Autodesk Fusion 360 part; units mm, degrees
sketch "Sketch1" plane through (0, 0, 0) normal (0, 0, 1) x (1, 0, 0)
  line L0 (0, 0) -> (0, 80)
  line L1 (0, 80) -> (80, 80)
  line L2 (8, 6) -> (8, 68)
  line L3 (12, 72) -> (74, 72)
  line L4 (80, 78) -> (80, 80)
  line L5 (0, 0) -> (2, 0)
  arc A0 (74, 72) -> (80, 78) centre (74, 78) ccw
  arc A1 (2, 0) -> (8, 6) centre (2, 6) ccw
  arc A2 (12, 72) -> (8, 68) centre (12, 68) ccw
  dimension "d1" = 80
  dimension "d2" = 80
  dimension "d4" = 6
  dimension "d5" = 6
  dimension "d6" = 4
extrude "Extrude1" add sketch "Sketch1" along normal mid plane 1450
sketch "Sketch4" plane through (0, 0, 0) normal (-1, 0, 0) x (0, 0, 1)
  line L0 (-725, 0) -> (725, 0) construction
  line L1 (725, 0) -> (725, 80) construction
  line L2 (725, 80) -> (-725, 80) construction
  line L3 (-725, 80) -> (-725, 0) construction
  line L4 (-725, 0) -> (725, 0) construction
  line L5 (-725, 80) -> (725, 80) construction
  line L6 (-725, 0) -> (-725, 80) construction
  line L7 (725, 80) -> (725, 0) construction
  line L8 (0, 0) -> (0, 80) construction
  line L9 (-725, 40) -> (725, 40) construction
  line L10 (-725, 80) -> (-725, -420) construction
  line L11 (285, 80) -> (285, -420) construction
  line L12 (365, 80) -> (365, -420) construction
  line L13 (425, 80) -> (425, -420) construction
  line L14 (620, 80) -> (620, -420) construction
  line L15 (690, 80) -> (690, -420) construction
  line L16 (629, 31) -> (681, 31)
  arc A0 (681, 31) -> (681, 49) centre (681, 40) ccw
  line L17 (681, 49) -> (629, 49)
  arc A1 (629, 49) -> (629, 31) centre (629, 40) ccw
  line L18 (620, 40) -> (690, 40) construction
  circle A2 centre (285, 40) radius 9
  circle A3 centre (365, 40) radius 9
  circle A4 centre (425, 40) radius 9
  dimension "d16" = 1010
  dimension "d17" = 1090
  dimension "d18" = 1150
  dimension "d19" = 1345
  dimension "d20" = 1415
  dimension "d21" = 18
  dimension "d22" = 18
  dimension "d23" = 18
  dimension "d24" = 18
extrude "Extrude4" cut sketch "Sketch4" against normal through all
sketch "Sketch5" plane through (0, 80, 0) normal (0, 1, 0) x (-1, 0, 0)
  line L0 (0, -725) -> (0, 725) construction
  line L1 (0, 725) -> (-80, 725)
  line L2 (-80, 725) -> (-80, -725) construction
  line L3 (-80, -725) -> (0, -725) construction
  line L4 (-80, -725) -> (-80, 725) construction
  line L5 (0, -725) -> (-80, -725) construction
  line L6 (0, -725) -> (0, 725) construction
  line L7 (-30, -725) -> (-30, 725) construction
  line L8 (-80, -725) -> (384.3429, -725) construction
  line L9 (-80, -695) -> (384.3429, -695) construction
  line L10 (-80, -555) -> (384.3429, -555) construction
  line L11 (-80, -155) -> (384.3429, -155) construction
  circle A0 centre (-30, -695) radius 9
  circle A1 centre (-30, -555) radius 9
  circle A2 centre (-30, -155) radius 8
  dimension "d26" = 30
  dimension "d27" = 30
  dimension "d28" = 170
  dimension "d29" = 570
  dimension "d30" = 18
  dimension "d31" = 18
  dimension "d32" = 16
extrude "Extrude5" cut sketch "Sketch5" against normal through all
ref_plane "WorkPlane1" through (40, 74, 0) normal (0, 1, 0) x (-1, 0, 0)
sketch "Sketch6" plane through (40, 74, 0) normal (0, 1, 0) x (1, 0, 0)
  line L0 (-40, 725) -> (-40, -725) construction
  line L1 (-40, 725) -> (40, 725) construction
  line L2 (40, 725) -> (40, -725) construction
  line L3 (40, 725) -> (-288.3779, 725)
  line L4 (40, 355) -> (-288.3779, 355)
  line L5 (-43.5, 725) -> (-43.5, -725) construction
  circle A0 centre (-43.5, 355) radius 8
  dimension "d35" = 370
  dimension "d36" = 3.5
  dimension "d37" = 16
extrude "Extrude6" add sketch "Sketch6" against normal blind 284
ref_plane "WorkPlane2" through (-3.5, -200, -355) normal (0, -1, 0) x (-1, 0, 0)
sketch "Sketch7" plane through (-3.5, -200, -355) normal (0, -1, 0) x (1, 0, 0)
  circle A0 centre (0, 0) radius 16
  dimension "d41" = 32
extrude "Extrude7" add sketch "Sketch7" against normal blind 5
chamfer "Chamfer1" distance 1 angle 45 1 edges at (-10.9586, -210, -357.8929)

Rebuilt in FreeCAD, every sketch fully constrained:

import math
import FreeCAD as App
import Part
import Sketcher


def edges_at(feature, points):
    """Names of the edges that pass closest to the given points."""
    edges = feature.Shape.Edges
    near = lambda p: min(range(len(edges)), key=lambda i: edges[i].distToShape(Part.Vertex(*p))[0])
    return sorted({f"Edge{near(p) + 1}" for p in points})

doc = App.newDocument("Part")
params = doc.addObject("Spreadsheet::Sheet", "Params")
for row, (alias, value) in enumerate([
    ("sketch1_radius", "6 mm"),
    ("sketch1_radius2", "4 mm"),
    ("sketch1_width", "80 mm"),
    ("sketch1_width2", "2 mm"),
    ("pad1_length", "1450 mm"),
    ("sketch2_diameter", "18 mm"),
    ("sketch2_height", "52 mm"),
    ("sketch3_diameter", "18 mm"),
    ("sketch3_diameter2", "16 mm"),
    ("sketch4_diameter", "16 mm"),
    ("pad2_length", "284 mm"),
    ("sketch5_diameter", "32 mm"),
    ("pad3_length", "5 mm"),
    ("chamfer_size", "1 mm"),
], start=1):
    params.set(f"A{row}", alias)
    params.set(f"B{row}", "=" + value)
    params.setAlias(f"B{row}", alias)

body = doc.addObject("PartDesign::Body", "Body")

# Sketch on XY plane
sketch1 = doc.addObject("Sketcher::SketchObject", "Sketch")
body.addObject(sketch1)
sketch1.AttachmentSupport = (doc.XY_Plane, [""])
sketch1.MapMode = "FlatFace"
sketch1.addGeometry([
    Part.LineSegment(App.Vector(0, 80, 0), App.Vector(0, 0, 0)),  # 0
    Part.LineSegment(App.Vector(0, 0, 0), App.Vector(2, 0, 0)),  # 1
    Part.ArcOfCircle(Part.Circle(App.Vector(2, 6, 0), App.Vector(0, 0, 1), 6), math.radians(-90), math.radians(0)),  # 2
    Part.LineSegment(App.Vector(8, 6, 0), App.Vector(8, 68, 0)),  # 3
    Part.ArcOfCircle(Part.Circle(App.Vector(12, 68, 0), App.Vector(0, 0, 1), 4), math.radians(90), math.radians(180)),  # 4
    Part.LineSegment(App.Vector(12, 72, 0), App.Vector(74, 72, 0)),  # 5
    Part.ArcOfCircle(Part.Circle(App.Vector(74, 78, 0), App.Vector(0, 0, 1), 6), math.radians(-90), math.radians(0)),  # 6
    Part.LineSegment(App.Vector(80, 78, 0), App.Vector(80, 80, 0)),  # 7
    Part.LineSegment(App.Vector(80, 80, 0), App.Vector(0, 80, 0)),  # 8
], False)
sketch1.addConstraint([
    Sketcher.Constraint("Coincident", 0, 2, 1, 1),
    Sketcher.Constraint("Tangent", 1, 2, 2, 1),
    Sketcher.Constraint("Tangent", 2, 2, 3, 1),
    Sketcher.Constraint("Tangent", 3, 2, 4, 2),
    Sketcher.Constraint("Tangent", 4, 1, 5, 1),
    Sketcher.Constraint("Tangent", 5, 2, 6, 1),
    Sketcher.Constraint("Tangent", 6, 2, 7, 1),
    Sketcher.Constraint("Coincident", 7, 2, 8, 1),
    Sketcher.Constraint("Coincident", 8, 2, 0, 1),
    Sketcher.Constraint("Vertical", 0),
    Sketcher.Constraint("Horizontal", 1),
    Sketcher.Constraint("Vertical", 3),
    Sketcher.Constraint("Horizontal", 5),
    Sketcher.Constraint("Vertical", 7),
    Sketcher.Constraint("Horizontal", 8),
    Sketcher.Constraint("Coincident", 0, 2, -1, 1),
    Sketcher.Constraint("Equal", 2, 6),
    Sketcher.Constraint("Equal", 8, 0),
    Sketcher.Constraint("Equal", 5, 3),
    Sketcher.Constraint("Radius", 2, 6.0),
    Sketcher.Constraint("Radius", 4, 4.0),
    Sketcher.Constraint("DistanceX", 8, 2, 8, 1, 80.0),
    Sketcher.Constraint("DistanceX", 1, 1, 1, 2, 2.0),
])
sketch1.setExpression("Constraints[19]", "Params.sketch1_radius")
sketch1.setExpression("Constraints[20]", "Params.sketch1_radius2")
sketch1.setExpression("Constraints[21]", "Params.sketch1_width")
sketch1.setExpression("Constraints[22]", "Params.sketch1_width2")
pad1 = doc.addObject("PartDesign::Pad", "Pad")
body.addObject(pad1)
pad1.Profile = sketch1
pad1.setExpression("Length", "Params.pad1_length")
pad1.Midplane = True

# Sketch on YZ plane
sketch2 = doc.addObject("Sketcher::SketchObject", "Sketch001")
body.addObject(sketch2)
sketch2.AttachmentSupport = (doc.YZ_Plane, [""])
sketch2.MapMode = "FlatFace"
sketch2.addGeometry([
    Part.ArcOfCircle(Part.Circle(App.Vector(40, 629, 0), App.Vector(0, 0, 1), 9), math.radians(180), math.radians(360)),  # 0
    Part.LineSegment(App.Vector(31, 629, 0), App.Vector(31, 681, 0)),  # 1
    Part.ArcOfCircle(Part.Circle(App.Vector(40, 681, 0), App.Vector(0, 0, 1), 9), math.radians(0), math.radians(180)),  # 2
    Part.LineSegment(App.Vector(49, 681, 0), App.Vector(49, 629, 0)),  # 3
    Part.Circle(App.Vector(40, 285, 0), App.Vector(0, 0, 1), 9),  # 4
    Part.Circle(App.Vector(40, 365, 0), App.Vector(0, 0, 1), 9),  # 5
    Part.Circle(App.Vector(40, 425, 0), App.Vector(0, 0, 1), 9),  # 6
], False)
sketch2.addConstraint([
    Sketcher.Constraint("Tangent", 0, 1, 1, 1),
    Sketcher.Constraint("Tangent", 1, 2, 2, 2),
    Sketcher.Constraint("Tangent", 2, 1, 3, 1),
    Sketcher.Constraint("Tangent", 3, 2, 0, 2),
    Sketcher.Constraint("Vertical", 1),
    Sketcher.Constraint("Vertical", 3),
    Sketcher.Constraint("Equal", 2, 4),
    Sketcher.Constraint("Equal", 4, 5),
    Sketcher.Constraint("Equal", 5, 6),
    Sketcher.Constraint("Vertical", 2, 3, 4, 3),
    Sketcher.Constraint("Vertical", 4, 3, 5, 3),
    Sketcher.Constraint("Vertical", 5, 3, 6, 3),
    Sketcher.Constraint("Diameter", 4, 18.0),
    Sketcher.Constraint("DistanceY", 1, 1, 1, 2, 52.0),
    Sketcher.Constraint("DistanceX", -1, 1, 0, 3, 40.0),
    Sketcher.Constraint("DistanceY", -1, 1, 0, 3, 629.0),
    Sketcher.Constraint("DistanceY", -1, 1, 4, 3, 285.0),
    Sketcher.Constraint("DistanceY", -1, 1, 5, 3, 365.0),
    Sketcher.Constraint("DistanceY", -1, 1, 6, 3, 425.0),
])
sketch2.setExpression("Constraints[12]", "Params.sketch2_diameter")
sketch2.setExpression("Constraints[13]", "Params.sketch2_height")
pocket1 = doc.addObject("PartDesign::Pocket", "Pocket")
body.addObject(pocket1)
pocket1.Profile = sketch2
pocket1.Type = "ThroughAll"
pocket1.Reversed = True

# Sketch on XZ plane
sketch3 = doc.addObject("Sketcher::SketchObject", "Sketch002")
body.addObject(sketch3)
sketch3.AttachmentSupport = (doc.XZ_Plane, [""])
sketch3.MapMode = "FlatFace"
sketch3.AttachmentOffset = App.Placement(App.Vector(0, 0, -80), App.Rotation())
sketch3.addGeometry([
    Part.Circle(App.Vector(30, -695, 0), App.Vector(0, 0, 1), 9),
    Part.Circle(App.Vector(30, -555, 0), App.Vector(0, 0, 1), 9),
    Part.Circle(App.Vector(30, -155, 0), App.Vector(0, 0, 1), 8),
], False)
sketch3.addConstraint([
    Sketcher.Constraint("Equal", 0, 1),
    Sketcher.Constraint("Vertical", 0, 3, 1, 3),
    Sketcher.Constraint("Vertical", 1, 3, 2, 3),
    Sketcher.Constraint("Diameter", 0, 18.0),
    Sketcher.Constraint("Diameter", 2, 16.0),
    Sketcher.Constraint("DistanceX", -1, 1, 0, 3, 30.0),
    Sketcher.Constraint("DistanceY", 0, 3, -1, 1, 695.0),
    Sketcher.Constraint("DistanceY", 1, 3, -1, 1, 555.0),
    Sketcher.Constraint("DistanceY", 2, 3, -1, 1, 155.0),
])
sketch3.setExpression("Constraints[3]", "Params.sketch3_diameter")
sketch3.setExpression("Constraints[4]", "Params.sketch3_diameter2")
pocket2 = doc.addObject("PartDesign::Pocket", "Pocket001")
body.addObject(pocket2)
pocket2.Profile = sketch3
pocket2.Type = "ThroughAll"
pocket2.Reversed = True

# Sketch on XZ plane
sketch4 = doc.addObject("Sketcher::SketchObject", "Sketch003")
body.addObject(sketch4)
sketch4.AttachmentSupport = (doc.XZ_Plane, [""])
sketch4.MapMode = "FlatFace"
sketch4.AttachmentOffset = App.Placement(App.Vector(0, 0, -74), App.Rotation())
sketch4.addGeometry(Part.Circle(App.Vector(-3.5, -355, 0), App.Vector(0, 0, 1), 8), False)
sketch4.addConstraint([
    Sketcher.Constraint("Diameter", 0, 16.0),
    Sketcher.Constraint("DistanceX", 0, 3, -1, 1, 3.5),
    Sketcher.Constraint("DistanceY", 0, 3, -1, 1, 355.0),
])
sketch4.setExpression("Constraints[0]", "Params.sketch4_diameter")
pad2 = doc.addObject("PartDesign::Pad", "Pad001")
body.addObject(pad2)
pad2.Profile = sketch4
pad2.setExpression("Length", "Params.pad2_length")

# Sketch on XZ plane
sketch5 = doc.addObject("Sketcher::SketchObject", "Sketch004")
body.addObject(sketch5)
sketch5.AttachmentSupport = (doc.XZ_Plane, [""])
sketch5.MapMode = "FlatFace"
sketch5.AttachmentOffset = App.Placement(App.Vector(0, 0, 200), App.Rotation())
sketch5.addGeometry(Part.Circle(App.Vector(-3.5, -355, 0), App.Vector(0, 0, 1), 16), False)
sketch5.addConstraint([
    Sketcher.Constraint("Diameter", 0, 32.0),
    Sketcher.Constraint("DistanceY", 0, 3, -1, 1, 355.0),
    Sketcher.Constraint("DistanceX", 0, 3, -1, 1, 3.5),
])
sketch5.setExpression("Constraints[0]", "Params.sketch5_diameter")
pad3 = doc.addObject("PartDesign::Pad", "Pad002")
body.addObject(pad3)
pad3.Profile = sketch5
pad3.setExpression("Length", "Params.pad3_length")
pad3.Reversed = True
doc.recompute()

chamfer = doc.addObject("PartDesign::Chamfer", "Chamfer")
body.addObject(chamfer)
chamfer.Base = (pad3, edges_at(pad3, [(-10.959, -210, -357.893)]))
chamfer.setExpression("Size", "Params.chamfer_size")

doc.recompute()
